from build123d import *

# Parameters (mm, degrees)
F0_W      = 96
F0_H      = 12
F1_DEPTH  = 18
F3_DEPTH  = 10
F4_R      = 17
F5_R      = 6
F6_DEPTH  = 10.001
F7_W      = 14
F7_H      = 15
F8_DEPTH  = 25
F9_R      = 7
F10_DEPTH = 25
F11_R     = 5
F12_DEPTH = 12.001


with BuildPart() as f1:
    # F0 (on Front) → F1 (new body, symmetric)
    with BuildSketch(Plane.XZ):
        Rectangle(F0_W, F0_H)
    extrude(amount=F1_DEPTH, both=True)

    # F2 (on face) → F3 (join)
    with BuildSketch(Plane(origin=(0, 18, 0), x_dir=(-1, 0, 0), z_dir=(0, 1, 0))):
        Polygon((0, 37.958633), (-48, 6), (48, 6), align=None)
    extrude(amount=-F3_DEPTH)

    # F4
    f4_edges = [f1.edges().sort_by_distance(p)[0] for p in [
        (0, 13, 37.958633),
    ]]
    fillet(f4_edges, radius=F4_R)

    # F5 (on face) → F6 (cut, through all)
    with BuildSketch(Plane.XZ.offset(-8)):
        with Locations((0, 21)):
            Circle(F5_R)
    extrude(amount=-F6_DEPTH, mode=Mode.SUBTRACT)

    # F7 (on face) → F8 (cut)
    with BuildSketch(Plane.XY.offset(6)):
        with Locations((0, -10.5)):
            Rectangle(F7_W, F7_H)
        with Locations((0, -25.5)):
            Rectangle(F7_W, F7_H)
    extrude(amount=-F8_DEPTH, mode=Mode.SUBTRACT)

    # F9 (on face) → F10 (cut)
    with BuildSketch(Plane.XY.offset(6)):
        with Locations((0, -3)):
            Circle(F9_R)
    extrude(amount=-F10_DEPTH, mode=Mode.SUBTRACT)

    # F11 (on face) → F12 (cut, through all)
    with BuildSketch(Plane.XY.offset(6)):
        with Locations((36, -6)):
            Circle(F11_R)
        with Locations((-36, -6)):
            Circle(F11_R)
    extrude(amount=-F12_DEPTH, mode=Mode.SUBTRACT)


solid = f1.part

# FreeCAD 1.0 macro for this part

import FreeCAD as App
import Part
import Sketcher
from FreeCAD import Vector
Q = App.Units.Quantity


def edges_at(feature, points):
    """Names of the edges that pass closest to the given points."""
    edges = feature.Shape.Edges
    near = lambda p: min(range(len(edges)), key=lambda i: edges[i].distToShape(Part.Vertex(*p))[0])
    return sorted({f"Edge{near(p) + 1}" for p in points})


def add_polygon(sketch, points):
    """Adds a closed chain of lines whose ends are joined by coincident constraints."""
    first, n = sketch.GeometryCount, len(points)
    for a, b in zip(points, points[1:] + points[:1]):
        sketch.addGeometry(Part.LineSegment(App.Vector(*a, 0), App.Vector(*b, 0)), False)
    for i in range(n):
        sketch.addConstraint(Sketcher.Constraint("Coincident", first + i, 2, first + (i + 1) % n, 1))

doc = App.newDocument("Part")
body = doc.addObject("PartDesign::Body", "Body")

sketch1 = doc.addObject("Sketcher::SketchObject", "Sketch")
body.addObject(sketch1)
sketch1.AttachmentSupport = (doc.XZ_Plane, [""])
sketch1.MapMode = "FlatFace"
add_polygon(sketch1, [(-48, 6), (-48, -6), (48, -6), (48, 6)])
sketch1.addConstraint([
    Sketcher.Constraint("Vertical", 0),
    Sketcher.Constraint("Horizontal", 1),
    Sketcher.Constraint("Vertical", 2),
    Sketcher.Constraint("Horizontal", 3),
    Sketcher.Constraint("Symmetric", 0, 2, 2, 2, -1, 1),
    Sketcher.Constraint("DistanceX", 1, 1, 1, 2, Q("96 mm")),
    Sketcher.Constraint("DistanceY", 0, 2, 0, 1, Q("12 mm")),
])
pad1 = doc.addObject("PartDesign::Pad", "Pad")
body.addObject(pad1)
pad1.Profile = sketch1
pad1.Length = 36
pad1.Midplane = True

sketch2 = doc.addObject("Sketcher::SketchObject", "Sketch001")
body.addObject(sketch2)
sketch2.AttachmentSupport = (doc.XZ_Plane, [""])
sketch2.MapMode = "FlatFace"
sketch2.AttachmentOffset = App.Placement(Vector(0, 0, -18), App.Rotation())
add_polygon(sketch2, [(0, 38), (48, 6), (-48, 6)])
sketch2.addConstraint([
    Sketcher.Constraint("Horizontal", 1),
    Sketcher.Constraint("PointOnObject", 2, 2, -2),
    Sketcher.Constraint("Equal", 0, 2),
    Sketcher.Constraint("DistanceX", 1, 2, 1, 1, Q("96 mm")),
    Sketcher.Constraint("DistanceY", -1, 1, 0, 2, Q("6 mm")),
    Sketcher.Constraint("Distance", 0, Q("57.665884 mm")),
])
pad2 = doc.addObject("PartDesign::Pad", "Pad001")
body.addObject(pad2)
pad2.Profile = sketch2
pad2.Length = 10
doc.recompute()

fillet = doc.addObject("PartDesign::Fillet", "Fillet")
body.addObject(fillet)
fillet.Base = (pad2, edges_at(pad2, [(0, 13, 37.959)]))
fillet.Radius = 17

sketch3 = doc.addObject("Sketcher::SketchObject", "Sketch002")
body.addObject(sketch3)
sketch3.AttachmentSupport = (doc.XZ_Plane, [""])
sketch3.MapMode = "FlatFace"
sketch3.AttachmentOffset = App.Placement(Vector(0, 0, -8), App.Rotation())
sketch3.addGeometry(Part.Circle(Vector(0, 21, 0), Vector(0, 0, 1), 6), False)
sketch3.addConstraint([
    Sketcher.Constraint("PointOnObject", 0, 3, -2),
    Sketcher.Constraint("Diameter", 0, Q("12 mm")),
    Sketcher.Constraint("DistanceY", -1, 1, 0, 3, Q("21 mm")),
])
pocket1 = doc.addObject("PartDesign::Pocket", "Pocket")
body.addObject(pocket1)
pocket1.Profile = sketch3
pocket1.Type = "ThroughAll"

sketch4 = doc.addObject("Sketcher::SketchObject", "Sketch003")
body.addObject(sketch4)
sketch4.AttachmentSupport = (doc.XY_Plane, [""])
sketch4.MapMode = "FlatFace"
sketch4.AttachmentOffset = App.Placement(Vector(0, 0, 6), App.Rotation())
add_polygon(sketch4, [(-7, -3), (-7, -33), (7, -33), (7, -3)])
sketch4.addConstraint([
    Sketcher.Constraint("Vertical", 0),
    Sketcher.Constraint("Horizontal", 1),
    Sketcher.Constraint("Vertical", 2),
    Sketcher.Constraint("Horizontal", 3),
    Sketcher.Constraint("DistanceX", 1, 1, 1, 2, Q("14 mm")),
    Sketcher.Constraint("DistanceY", 0, 2, 0, 1, Q("30 mm")),
    Sketcher.Constraint("DistanceX", 0, 2, -1, 1, Q("7 mm")),
    Sketcher.Constraint("DistanceY", 0, 2, -1, 1, Q("33 mm")),
])
pocket2 = doc.addObject("PartDesign::Pocket", "Pocket001")
body.addObject(pocket2)
pocket2.Profile = sketch4
pocket2.Length = 25

sketch5 = doc.addObject("Sketcher::SketchObject", "Sketch004")
body.addObject(sketch5)
sketch5.AttachmentSupport = (doc.XY_Plane, [""])
sketch5.MapMode = "FlatFace"
sketch5.AttachmentOffset = App.Placement(Vector(0, 0, 6), App.Rotation())
sketch5.addGeometry(Part.Circle(Vector(0, -3, 0), Vector(0, 0, 1), 7), False)
sketch5.addConstraint([
    Sketcher.Constraint("PointOnObject", 0, 3, -2),
    Sketcher.Constraint("Diameter", 0, Q("14 mm")),
    Sketcher.Constraint("DistanceY", 0, 3, -1, 1, Q("3 mm")),
])
pocket3 = doc.addObject("PartDesign::Pocket", "Pocket002")
body.addObject(pocket3)
pocket3.Profile = sketch5
pocket3.Length = 25

sketch6 = doc.addObject("Sketcher::SketchObject", "Sketch005")
body.addObject(sketch6)
sketch6.AttachmentSupport = (doc.XY_Plane, [""])
sketch6.MapMode = "FlatFace"
sketch6.AttachmentOffset = App.Placement(Vector(0, 0, 6), App.Rotation())
sketch6.addGeometry([
    Part.Circle(Vector(36, -6, 0), Vector(0, 0, 1), 5),
    Part.Circle(Vector(-36, -6, 0), Vector(0, 0, 1), 5),
], False)
sketch6.addConstraint([
    Sketcher.Constraint("Equal", 0, 1),
    Sketcher.Constraint("Symmetric", 0, 3, 1, 3, -2),
    Sketcher.Constraint("Diameter", 0, Q("10 mm")),
    Sketcher.Constraint("DistanceX", -1, 1, 0, 3, Q("36 mm")),
    Sketcher.Constraint("DistanceY", 0, 3, -1, 1, Q("6 mm")),
])
pocket4 = doc.addObject("PartDesign::Pocket", "Pocket003")
body.addObject(pocket4)
pocket4.Profile = sketch6
pocket4.Type = "ThroughAll"

doc.recompute()
